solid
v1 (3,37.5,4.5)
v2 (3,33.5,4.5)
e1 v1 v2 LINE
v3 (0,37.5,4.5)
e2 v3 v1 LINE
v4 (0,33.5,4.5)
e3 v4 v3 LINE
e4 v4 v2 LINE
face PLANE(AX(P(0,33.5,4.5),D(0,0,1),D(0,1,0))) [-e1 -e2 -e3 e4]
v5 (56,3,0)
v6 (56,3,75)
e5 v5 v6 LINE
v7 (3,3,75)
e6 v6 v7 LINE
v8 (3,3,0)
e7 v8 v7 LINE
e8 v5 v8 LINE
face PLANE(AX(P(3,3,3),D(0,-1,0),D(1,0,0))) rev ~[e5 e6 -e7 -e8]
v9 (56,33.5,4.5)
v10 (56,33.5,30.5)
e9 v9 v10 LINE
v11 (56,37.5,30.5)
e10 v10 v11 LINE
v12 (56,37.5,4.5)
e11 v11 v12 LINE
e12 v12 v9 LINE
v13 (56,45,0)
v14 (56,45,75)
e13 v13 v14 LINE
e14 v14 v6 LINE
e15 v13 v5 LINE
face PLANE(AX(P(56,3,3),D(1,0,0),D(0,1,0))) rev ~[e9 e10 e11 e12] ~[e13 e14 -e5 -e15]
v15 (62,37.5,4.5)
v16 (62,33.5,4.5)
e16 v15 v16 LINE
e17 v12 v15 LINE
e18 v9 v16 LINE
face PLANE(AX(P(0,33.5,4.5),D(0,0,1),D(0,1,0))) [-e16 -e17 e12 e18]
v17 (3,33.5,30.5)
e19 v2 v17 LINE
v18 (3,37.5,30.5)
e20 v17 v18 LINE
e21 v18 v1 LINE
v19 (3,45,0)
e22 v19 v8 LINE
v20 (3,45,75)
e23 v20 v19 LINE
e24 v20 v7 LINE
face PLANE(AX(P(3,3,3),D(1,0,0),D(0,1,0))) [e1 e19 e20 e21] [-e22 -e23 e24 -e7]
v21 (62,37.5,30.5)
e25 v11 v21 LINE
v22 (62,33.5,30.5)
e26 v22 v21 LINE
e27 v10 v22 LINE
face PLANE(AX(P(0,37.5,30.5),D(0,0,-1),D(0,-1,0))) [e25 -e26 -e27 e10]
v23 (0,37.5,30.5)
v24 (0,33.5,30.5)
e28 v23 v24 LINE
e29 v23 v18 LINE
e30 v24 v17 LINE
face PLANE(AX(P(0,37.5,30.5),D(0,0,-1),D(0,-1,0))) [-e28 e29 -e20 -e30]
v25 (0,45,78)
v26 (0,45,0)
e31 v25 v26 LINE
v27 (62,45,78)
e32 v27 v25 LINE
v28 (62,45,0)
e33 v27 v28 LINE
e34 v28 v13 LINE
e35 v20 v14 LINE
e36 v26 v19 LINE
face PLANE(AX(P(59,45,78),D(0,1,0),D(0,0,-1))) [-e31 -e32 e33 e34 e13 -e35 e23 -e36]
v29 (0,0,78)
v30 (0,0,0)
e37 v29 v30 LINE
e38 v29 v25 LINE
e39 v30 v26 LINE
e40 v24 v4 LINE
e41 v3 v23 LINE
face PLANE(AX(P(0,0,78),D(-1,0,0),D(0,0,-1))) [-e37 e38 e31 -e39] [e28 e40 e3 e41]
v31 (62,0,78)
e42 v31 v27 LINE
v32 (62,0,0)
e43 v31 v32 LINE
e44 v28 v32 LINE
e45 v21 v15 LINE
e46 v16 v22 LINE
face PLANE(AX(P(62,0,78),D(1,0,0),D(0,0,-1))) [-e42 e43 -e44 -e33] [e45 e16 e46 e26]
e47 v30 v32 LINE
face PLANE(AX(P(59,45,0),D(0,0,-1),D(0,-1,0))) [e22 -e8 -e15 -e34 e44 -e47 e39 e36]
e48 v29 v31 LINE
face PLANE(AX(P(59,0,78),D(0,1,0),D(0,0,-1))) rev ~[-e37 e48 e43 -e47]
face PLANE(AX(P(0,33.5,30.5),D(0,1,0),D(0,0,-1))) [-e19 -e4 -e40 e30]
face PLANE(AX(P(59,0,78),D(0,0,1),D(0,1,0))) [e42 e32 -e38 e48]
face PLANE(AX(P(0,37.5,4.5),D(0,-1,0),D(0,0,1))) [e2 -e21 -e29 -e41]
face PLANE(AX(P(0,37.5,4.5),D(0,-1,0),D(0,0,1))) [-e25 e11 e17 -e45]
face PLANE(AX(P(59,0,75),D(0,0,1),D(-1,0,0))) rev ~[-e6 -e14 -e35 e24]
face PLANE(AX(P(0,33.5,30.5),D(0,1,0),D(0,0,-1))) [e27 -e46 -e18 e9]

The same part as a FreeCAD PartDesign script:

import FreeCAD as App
import Part
import Sketcher

V = App.Vector
Q = App.Units.Quantity


def faces_at(feature, points):
    """Names of the faces that lie closest to the given points."""
    faces = feature.Shape.Faces
    near = lambda p: min(range(len(faces)), key=lambda i: faces[i].distToShape(Part.Vertex(*p))[0])
    return sorted({f"Face{near(p) + 1}" for p in points})

doc = App.newDocument("Part")
body = doc.addObject("PartDesign::Body", "Body")

# Sketch on XZ plane
sketch1 = doc.addObject("Sketcher::SketchObject", "Sketch")
body.addObject(sketch1)
sketch1.AttachmentSupport = (doc.XZ_Plane, [""])
sketch1.MapMode = "FlatFace"
sketch1.addGeometry(Part.LineSegment(V(59, 0, 0), V(0, 0, 0)), False)
sketch1.addGeometry(Part.LineSegment(V(0, 0, 0), V(0, 78, 0)), False)
sketch1.addGeometry(Part.LineSegment(V(0, 78, 0), V(59, 78, 0)), False)
sketch1.addGeometry(Part.LineSegment(V(59, 78, 0), V(59, 0, 0)), False)
sketch1.addConstraint(Sketcher.Constraint("Coincident", 0, 2, 1, 1))
sketch1.addConstraint(Sketcher.Constraint("Coincident", 1, 2, 2, 1))
sketch1.addConstraint(Sketcher.Constraint("Coincident", 2, 2, 3, 1))
sketch1.addConstraint(Sketcher.Constraint("Coincident", 3, 2, 0, 1))
sketch1.addConstraint(Sketcher.Constraint("Horizontal", 0))
sketch1.addConstraint(Sketcher.Constraint("Vertical", 1))
sketch1.addConstraint(Sketcher.Constraint("Horizontal", 2))
sketch1.addConstraint(Sketcher.Constraint("Vertical", 3))
sketch1.addConstraint(Sketcher.Constraint("Coincident", 0, 2, -1, 1))
sketch1.addConstraint(Sketcher.Constraint("DistanceX", 0, 2, 0, 1, Q("59 mm")))
sketch1.addConstraint(Sketcher.Constraint("DistanceY", 1, 1, 1, 2, Q("78 mm")))
pad1 = doc.addObject("PartDesign::Pad", "Pad")
body.addObject(pad1)
pad1.Profile = sketch1
pad1.Length = 45
pad1.Reversed = True
doc.recompute()

thickness = doc.addObject("PartDesign::Thickness", "Thickness")
body.addObject(thickness)
thickness.Base = (pad1, faces_at(pad1, [(39.333, 45, 52)]))
thickness.Value = 3
thickness.Reversed = True
thickness.Join = "Intersection"

# Sketch on XY plane
sketch2 = doc.addObject("Sketcher::SketchObject", "Sketch001")
body.addObject(sketch2)
sketch2.AttachmentSupport = (doc.XY_Plane, [""])
sketch2.MapMode = "FlatFace"
sketch2.AttachmentOffset = App.Placement(V(0, 0, 3), App.Rotation())
sketch2.addGeometry(Part.LineSegment(V(3, 45, 0), V(3, 3, 0)), False)
sketch2.addGeometry(Part.LineSegment(V(3, 3, 0), V(56, 3, 0)), False)
sketch2.addGeometry(Part.LineSegment(V(56, 3, 0), V(56, 45, 0)), False)
sketch2.addGeometry(Part.LineSegment(V(56, 45, 0), V(3, 45, 0)), False)
sketch2.addConstraint(Sketcher.Constraint("Coincident", 0, 2, 1, 1))
sketch2.addConstraint(Sketcher.Constraint("Coincident", 1, 2, 2, 1))
sketch2.addConstraint(Sketcher.Constraint("Coincident", 2, 2, 3, 1))
sketch2.addConstraint(Sketcher.Constraint("Coincident", 3, 2, 0, 1))
sketch2.addConstraint(Sketcher.Constraint("Vertical", 0))
sketch2.addConstraint(Sketcher.Constraint("Horizontal", 1))
sketch2.addConstraint(Sketcher.Constraint("Vertical", 2))
sketch2.addConstraint(Sketcher.Constraint("Horizontal", 3))
sketch2.addConstraint(Sketcher.Constraint("DistanceX", 1, 1, 1, 2, Q("53 mm")))
sketch2.addConstraint(Sketcher.Constraint("DistanceY", 0, 2, 0, 1, Q("42 mm")))
sketch2.addConstraint(Sketcher.Constraint("DistanceX", -1, 1, 0, 2, Q("3 mm")))
sketch2.addConstraint(Sketcher.Constraint("DistanceY", -1, 1, 0, 2, Q("3 mm")))
pocket1 = doc.addObject("PartDesign::Pocket", "Pocket")
body.addObject(pocket1)
pocket1.Profile = sketch2
pocket1.Length = 10

# Sketch on YZ plane
sketch3 = doc.addObject("Sketcher::SketchObject", "Sketch002")
body.addObject(sketch3)
sketch3.AttachmentSupport = (doc.YZ_Plane, [""])
sketch3.MapMode = "FlatFace"
sketch3.AttachmentOffset = App.Placement(V(0, 0, 59), App.Rotation())
sketch3.addGeometry(Part.LineSegment(V(45, 78, 0), V(0, 78, 0)), False)
sketch3.addGeometry(Part.LineSegment(V(0, 78, 0), V(0, 0, 0)), False)
sketch3.addGeometry(Part.LineSegment(V(0, 0, 0), V(45, 0, 0)), False)
sketch3.addGeometry(Part.LineSegment(V(45, 0, 0), V(45, 78, 0)), False)
sketch3.addConstraint(Sketcher.Constraint("Coincident", 0, 2, 1, 1))
sketch3.addConstraint(Sketcher.Constraint("Coincident", 1, 2, 2, 1))
sketch3.addConstraint(Sketcher.Constraint("Coincident", 2, 2, 3, 1))
sketch3.addConstraint(Sketcher.Constraint("Coincident", 3, 2, 0, 1))
sketch3.addConstraint(Sketcher.Constraint("Horizontal", 0))
sketch3.addConstraint(Sketcher.Constraint("Vertical", 1))
sketch3.addConstraint(Sketcher.Constraint("Horizontal", 2))
sketch3.addConstraint(Sketcher.Constraint("Vertical", 3))
sketch3.addConstraint(Sketcher.Constraint("Coincident", 1, 2, -1, 1))
sketch3.addConstraint(Sketcher.Constraint("DistanceX", 0, 2, 0, 1, Q("45 mm")))
sketch3.addConstraint(Sketcher.Constraint("DistanceY", 1, 2, 1, 1, Q("78 mm")))
pad2 = doc.addObject("PartDesign::Pad", "Pad001")
body.addObject(pad2)
pad2.Profile = sketch3
pad2.Length = 3

# Sketch on YZ plane
sketch4 = doc.addObject("Sketcher::SketchObject", "Sketch003")
body.addObject(sketch4)
sketch4.AttachmentSupport = (doc.YZ_Plane, [""])
sketch4.MapMode = "FlatFace"
sketch4.addGeometry(Part.LineSegment(V(37.5, 30.5, 0), V(37.5, 4.5, 0)), False)
sketch4.addGeometry(Part.LineSegment(V(37.5, 4.5, 0), V(33.5, 4.5, 0)), False)
sketch4.addGeometry(Part.LineSegment(V(33.5, 4.5, 0), V(33.5, 30.5, 0)), False)
sketch4.addGeometry(Part.LineSegment(V(33.5, 30.5, 0), V(37.5, 30.5, 0)), False)
sketch4.addConstraint(Sketcher.Constraint("Coincident", 0, 2, 1, 1))
sketch4.addConstraint(Sketcher.Constraint("Coincident", 1, 2, 2, 1))
sketch4.addConstraint(Sketcher.Constraint("Coincident", 2, 2, 3, 1))
sketch4.addConstraint(Sketcher.Constraint("Coincident", 3, 2, 0, 1))
sketch4.addConstraint(Sketcher.Constraint("Vertical", 0))
sketch4.addConstraint(Sketcher.Constraint("Horizontal", 1))
sketch4.addConstraint(Sketcher.Constraint("Vertical", 2))
sketch4.addConstraint(Sketcher.Constraint("Horizontal", 3))
sketch4.addConstraint(Sketcher.Constraint("DistanceX", 1, 2, 1, 1, Q("4 mm")))
sketch4.addConstraint(Sketcher.Constraint("DistanceY", 0, 2, 0, 1, Q("26 mm")))
sketch4.addConstraint(Sketcher.Constraint("DistanceY", -1, 1, 0, 2, Q("4.5 mm")))
sketch4.addConstraint(Sketcher.Constraint("DistanceX", -1, 1, 1, 2, Q("33.5 mm")))
pocket2 = doc.addObject("PartDesign::Pocket", "Pocket001")
body.addObject(pocket2)
pocket2.Profile = sketch4
pocket2.Type = "ThroughAll"
pocket2.Reversed = True

doc.recompute()
